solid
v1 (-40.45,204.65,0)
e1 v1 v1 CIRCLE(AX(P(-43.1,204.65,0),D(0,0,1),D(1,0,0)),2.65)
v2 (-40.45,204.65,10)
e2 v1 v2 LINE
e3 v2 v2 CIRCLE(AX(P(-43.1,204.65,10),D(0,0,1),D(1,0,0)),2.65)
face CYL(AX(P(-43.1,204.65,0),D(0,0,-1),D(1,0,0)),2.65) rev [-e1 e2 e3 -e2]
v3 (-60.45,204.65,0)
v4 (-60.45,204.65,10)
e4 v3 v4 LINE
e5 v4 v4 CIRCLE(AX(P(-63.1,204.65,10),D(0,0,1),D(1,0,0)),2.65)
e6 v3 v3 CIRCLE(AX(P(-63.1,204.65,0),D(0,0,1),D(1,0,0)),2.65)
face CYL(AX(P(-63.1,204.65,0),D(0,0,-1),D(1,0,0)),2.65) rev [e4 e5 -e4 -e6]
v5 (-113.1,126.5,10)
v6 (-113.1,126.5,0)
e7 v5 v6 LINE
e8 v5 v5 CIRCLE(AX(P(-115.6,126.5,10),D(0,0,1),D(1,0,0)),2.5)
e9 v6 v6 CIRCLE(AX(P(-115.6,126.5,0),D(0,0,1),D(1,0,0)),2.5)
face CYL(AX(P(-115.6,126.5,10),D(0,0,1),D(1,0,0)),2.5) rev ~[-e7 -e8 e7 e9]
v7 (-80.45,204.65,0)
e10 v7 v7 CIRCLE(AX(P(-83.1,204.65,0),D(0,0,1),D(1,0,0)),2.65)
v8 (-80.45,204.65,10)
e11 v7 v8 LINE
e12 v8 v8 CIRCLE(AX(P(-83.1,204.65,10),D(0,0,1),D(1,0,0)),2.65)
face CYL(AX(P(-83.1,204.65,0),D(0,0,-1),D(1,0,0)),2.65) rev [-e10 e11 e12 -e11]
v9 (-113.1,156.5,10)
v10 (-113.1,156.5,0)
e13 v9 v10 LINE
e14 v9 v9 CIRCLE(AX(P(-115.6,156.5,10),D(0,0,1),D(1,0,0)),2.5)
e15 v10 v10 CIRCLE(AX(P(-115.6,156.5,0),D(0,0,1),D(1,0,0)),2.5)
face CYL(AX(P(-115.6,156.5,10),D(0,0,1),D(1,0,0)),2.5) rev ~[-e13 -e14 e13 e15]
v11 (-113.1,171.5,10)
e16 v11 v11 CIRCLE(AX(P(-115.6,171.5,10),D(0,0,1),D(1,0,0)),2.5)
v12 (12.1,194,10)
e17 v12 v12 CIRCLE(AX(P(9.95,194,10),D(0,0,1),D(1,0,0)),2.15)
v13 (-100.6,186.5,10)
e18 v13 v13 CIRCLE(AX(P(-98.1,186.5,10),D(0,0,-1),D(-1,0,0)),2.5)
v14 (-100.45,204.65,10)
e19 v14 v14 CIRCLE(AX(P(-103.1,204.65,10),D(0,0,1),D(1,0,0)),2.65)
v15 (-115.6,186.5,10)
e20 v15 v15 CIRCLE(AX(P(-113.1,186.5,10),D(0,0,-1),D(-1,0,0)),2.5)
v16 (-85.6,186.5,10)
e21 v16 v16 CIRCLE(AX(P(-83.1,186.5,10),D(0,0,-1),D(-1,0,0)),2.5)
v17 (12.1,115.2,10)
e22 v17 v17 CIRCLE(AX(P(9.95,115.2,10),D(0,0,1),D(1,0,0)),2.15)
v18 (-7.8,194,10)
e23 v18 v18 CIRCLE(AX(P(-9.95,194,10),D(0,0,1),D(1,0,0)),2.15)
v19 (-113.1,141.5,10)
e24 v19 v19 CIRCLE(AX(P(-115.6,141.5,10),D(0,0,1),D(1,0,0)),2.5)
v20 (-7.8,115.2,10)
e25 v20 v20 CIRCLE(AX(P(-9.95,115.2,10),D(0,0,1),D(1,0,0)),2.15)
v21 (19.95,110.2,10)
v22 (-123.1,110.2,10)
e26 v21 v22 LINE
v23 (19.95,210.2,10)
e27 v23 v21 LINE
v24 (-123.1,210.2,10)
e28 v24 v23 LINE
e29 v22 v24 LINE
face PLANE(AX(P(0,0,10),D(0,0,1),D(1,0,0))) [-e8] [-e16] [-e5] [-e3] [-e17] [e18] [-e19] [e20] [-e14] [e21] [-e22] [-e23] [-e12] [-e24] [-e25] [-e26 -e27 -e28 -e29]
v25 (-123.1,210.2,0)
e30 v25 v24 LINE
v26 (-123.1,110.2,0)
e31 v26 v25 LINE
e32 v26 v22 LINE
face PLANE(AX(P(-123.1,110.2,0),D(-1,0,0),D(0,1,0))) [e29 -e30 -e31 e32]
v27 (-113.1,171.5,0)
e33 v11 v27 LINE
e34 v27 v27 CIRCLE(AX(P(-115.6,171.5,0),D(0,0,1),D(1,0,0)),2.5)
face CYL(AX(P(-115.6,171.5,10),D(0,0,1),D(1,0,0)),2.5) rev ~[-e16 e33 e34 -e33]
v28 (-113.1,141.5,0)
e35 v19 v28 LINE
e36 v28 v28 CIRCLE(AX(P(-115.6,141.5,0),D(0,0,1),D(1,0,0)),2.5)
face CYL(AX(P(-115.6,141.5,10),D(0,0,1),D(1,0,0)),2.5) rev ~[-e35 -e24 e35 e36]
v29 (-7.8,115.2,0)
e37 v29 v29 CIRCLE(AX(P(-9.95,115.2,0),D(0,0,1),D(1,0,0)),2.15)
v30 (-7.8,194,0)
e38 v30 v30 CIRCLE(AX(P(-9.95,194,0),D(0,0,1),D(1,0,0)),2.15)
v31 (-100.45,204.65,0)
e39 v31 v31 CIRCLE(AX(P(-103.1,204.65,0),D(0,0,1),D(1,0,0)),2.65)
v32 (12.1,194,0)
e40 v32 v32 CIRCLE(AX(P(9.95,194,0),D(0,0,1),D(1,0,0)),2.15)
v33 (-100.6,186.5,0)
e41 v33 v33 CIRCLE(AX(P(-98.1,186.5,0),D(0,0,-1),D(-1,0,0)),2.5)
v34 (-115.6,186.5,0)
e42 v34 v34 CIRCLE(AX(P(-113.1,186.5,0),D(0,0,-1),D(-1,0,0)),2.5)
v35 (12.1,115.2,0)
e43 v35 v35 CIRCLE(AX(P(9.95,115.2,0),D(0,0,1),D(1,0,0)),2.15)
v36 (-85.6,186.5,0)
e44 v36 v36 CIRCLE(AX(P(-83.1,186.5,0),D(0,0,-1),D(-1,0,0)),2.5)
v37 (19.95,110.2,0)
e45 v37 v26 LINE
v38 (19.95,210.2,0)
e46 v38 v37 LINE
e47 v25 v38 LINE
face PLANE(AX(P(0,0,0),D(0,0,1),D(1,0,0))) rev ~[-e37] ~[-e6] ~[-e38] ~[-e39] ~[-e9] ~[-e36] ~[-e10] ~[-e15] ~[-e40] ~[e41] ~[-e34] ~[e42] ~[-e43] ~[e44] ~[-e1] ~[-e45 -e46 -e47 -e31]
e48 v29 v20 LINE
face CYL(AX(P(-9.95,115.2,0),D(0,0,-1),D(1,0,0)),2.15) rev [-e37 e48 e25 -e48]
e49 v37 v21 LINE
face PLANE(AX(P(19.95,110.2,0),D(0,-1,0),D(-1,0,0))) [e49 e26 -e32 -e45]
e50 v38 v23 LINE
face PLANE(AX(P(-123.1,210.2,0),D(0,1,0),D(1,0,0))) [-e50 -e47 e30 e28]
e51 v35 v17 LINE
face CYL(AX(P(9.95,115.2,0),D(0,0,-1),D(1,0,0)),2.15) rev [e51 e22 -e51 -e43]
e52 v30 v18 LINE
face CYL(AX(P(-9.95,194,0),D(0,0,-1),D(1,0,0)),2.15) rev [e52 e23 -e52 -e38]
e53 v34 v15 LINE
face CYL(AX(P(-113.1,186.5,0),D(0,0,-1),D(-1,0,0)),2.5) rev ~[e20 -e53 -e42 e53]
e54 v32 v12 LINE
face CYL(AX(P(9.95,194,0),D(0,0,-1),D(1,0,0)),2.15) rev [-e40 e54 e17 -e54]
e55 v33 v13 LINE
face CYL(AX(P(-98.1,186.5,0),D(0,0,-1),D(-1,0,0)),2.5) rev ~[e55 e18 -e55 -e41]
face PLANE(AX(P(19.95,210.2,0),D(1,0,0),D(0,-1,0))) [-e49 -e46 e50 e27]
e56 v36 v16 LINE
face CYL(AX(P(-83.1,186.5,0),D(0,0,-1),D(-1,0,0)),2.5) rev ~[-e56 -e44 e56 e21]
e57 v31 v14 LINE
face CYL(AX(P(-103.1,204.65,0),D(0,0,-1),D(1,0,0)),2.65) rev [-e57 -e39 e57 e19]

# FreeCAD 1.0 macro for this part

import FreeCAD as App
import Part
import Sketcher

V = App.Vector
Q = App.Units.Quantity

doc = App.newDocument("Part")
body = doc.addObject("PartDesign::Body", "Body")

# Sketch on XY plane
sketch1 = body.newObject("Sketcher::SketchObject", "Sketch")
sketch1.AttachmentSupport = (doc.getObject("XY_Plane"), [""])
sketch1.MapMode = "FlatFace"
sketch1.addGeometry([
    Part.LineSegment(V(19.9, 210.2, 0), V(-123.1, 210.2, 0)),  # 0
    Part.LineSegment(V(-123.1, 210.2, 0), V(-123.1, 110.2, 0)),  # 1
    Part.LineSegment(V(-123.1, 110.2, 0), V(19.9, 110.2, 0)),  # 2
    Part.LineSegment(V(19.9, 110.2, 0), V(19.9, 210.2, 0)),  # 3
    Part.Circle(V(-9.9, 115.2, 0), V(0, 0, 1), 2.1),  # 4
    Part.Circle(V(9.9, 115.2, 0), V(0, 0, 1), 2.1),  # 5
    Part.Circle(V(-103.1, 204.7, 0), V(0, 0, 1), 2.6),  # 6
    Part.Circle(V(-83.1, 204.7, 0), V(0, 0, 1), 2.6),  # 7
    Part.Circle(V(-63.1, 204.7, 0), V(0, 0, 1), 2.6),  # 8
    Part.Circle(V(-43.1, 204.7, 0), V(0, 0, 1), 2.6),  # 9
    Part.Circle(V(-9.9, 194, 0), V(0, 0, 1), 2.1),  # 10
    Part.Circle(V(9.9, 194, 0), V(0, 0, 1), 2.1),  # 11
], False)
sketch1.addConstraint([
    Sketcher.Constraint("Coincident", 0, 2, 1, 1),
    Sketcher.Constraint("Coincident", 1, 2, 2, 1),
    Sketcher.Constraint("Coincident", 2, 2, 3, 1),
    Sketcher.Constraint("Coincident", 3, 2, 0, 1),
    Sketcher.Constraint("Horizontal", 0),
    Sketcher.Constraint("Vertical", 1),
    Sketcher.Constraint("Horizontal", 2),
    Sketcher.Constraint("Vertical", 3),
    Sketcher.Constraint("Equal", 4, 5),
    Sketcher.Constraint("Equal", 6, 7),
    Sketcher.Constraint("Equal", 7, 8),
    Sketcher.Constraint("Equal", 8, 9),
    Sketcher.Constraint("Equal", 5, 10),
    Sketcher.Constraint("Equal", 10, 11),
    Sketcher.Constraint("Symmetric", 4, 3, 5, 3, -2),
    Sketcher.Constraint("Symmetric", 10, 3, 11, 3, -2),
    Sketcher.Constraint("Horizontal", 6, 3, 7, 3),
    Sketcher.Constraint("Horizontal", 7, 3, 8, 3),
    Sketcher.Constraint("Horizontal", 8, 3, 9, 3),
    Sketcher.Constraint("Vertical", 4, 3, 10, 3),
    Sketcher.Constraint("Diameter", 4, Q("4.3 mm")),
    Sketcher.Constraint("Diameter", 6, Q("5.3 mm")),
    Sketcher.Constraint("DistanceY", 1, 2, 1, 1, Q("100 mm")),
    Sketcher.Constraint("DistanceY", -1, 1, 10, 3, Q("194 mm")),
    Sketcher.Constraint("DistanceX", 6, 3, 7, 3, Q("20 mm")),
    Sketcher.Constraint("DistanceX", 7, 3, 8, 3, Q("20 mm")),
    Sketcher.Constraint("DistanceX", 8, 3, 9, 3, Q("20 mm")),
    Sketcher.Constraint("DistanceX", 0, 2, 6, 3, Q("20 mm")),
    Sketcher.Constraint("DistanceY", 1, 2, 4, 3, Q("5 mm")),
    Sketcher.Constraint("DistanceX", 5, 3, 2, 2, Q("10 mm")),
    Sketcher.Constraint("DistanceX", 0, 2, 0, 1, Q("143.05 mm")),
    Sketcher.Constraint("DistanceY", -1, 1, 4, 3, Q("115.2 mm")),
    Sketcher.Constraint("DistanceX", 6, 3, -1, 1, Q("103.1 mm")),
    Sketcher.Constraint("DistanceY", -1, 1, 6, 3, Q("204.65 mm")),
])
pad1 = body.newObject("PartDesign::Pad", "Pad")
pad1.Profile = sketch1
pad1.Length = 10

# Sketch on XY plane
sketch2 = body.newObject("Sketcher::SketchObject", "Sketch001")
sketch2.AttachmentSupport = (doc.getObject("XY_Plane"), [""])
sketch2.MapMode = "FlatFace"
sketch2.addGeometry([
    Part.Circle(V(-83.1, 186.5, 0), V(0, 0, 1), 2.5),
    Part.Circle(V(-98.1, 186.5, 0), V(0, 0, 1), 2.5),
    Part.Circle(V(-113.1, 186.5, 0), V(0, 0, 1), 2.5),
], False)
sketch2.addConstraint([
    Sketcher.Constraint("Equal", 0, 1),
    Sketcher.Constraint("Equal", 1, 2),
    Sketcher.Constraint("Horizontal", 0, 3, 1, 3),
    Sketcher.Constraint("Horizontal", 1, 3, 2, 3),
    Sketcher.Constraint("Diameter", 0, Q("5 mm")),
    Sketcher.Constraint("DistanceX", 1, 3, 0, 3, Q("15 mm")),
    Sketcher.Constraint("DistanceX", 2, 3, 1, 3, Q("15 mm")),
    Sketcher.Constraint("DistanceX", 0, 3, -1, 1, Q("83.1 mm")),
    Sketcher.Constraint("DistanceY", -1, 1, 0, 3, Q("186.5 mm")),
])
pocket1 = body.newObject("PartDesign::Pocket", "Pocket")
pocket1.Profile = sketch2
pocket1.Type = "ThroughAll"
pocket1.Reversed = True

# Sketch on XY plane
sketch3 = body.newObject("Sketcher::SketchObject", "Sketch002")
sketch3.AttachmentSupport = (doc.getObject("XY_Plane"), [""])
sketch3.MapMode = "FlatFace"
sketch3.AttachmentOffset = App.Placement(V(0, 0, 10), App.Rotation())
sketch3.addGeometry([
    Part.Circle(V(-115.6, 171.5, 0), V(0, 0, 1), 2.5),
    Part.Circle(V(-115.6, 156.5, 0), V(0, 0, 1), 2.5),
    Part.Circle(V(-115.6, 141.5, 0), V(0, 0, 1), 2.5),
    Part.Circle(V(-115.6, 126.5, 0), V(0, 0, 1), 2.5),
], False)
sketch3.addConstraint([
    Sketcher.Constraint("Equal", 0, 1),
    Sketcher.Constraint("Equal", 1, 2),
    Sketcher.Constraint("Equal", 2, 3),
    Sketcher.Constraint("Vertical", 0, 3, 1, 3),
    Sketcher.Constraint("Vertical", 1, 3, 2, 3),
    Sketcher.Constraint("Vertical", 2, 3, 3, 3),
    Sketcher.Constraint("Diameter", 0, Q("5 mm")),
    Sketcher.Constraint("DistanceY", 1, 3, 0, 3, Q("15 mm")),
    Sketcher.Constraint("DistanceY", 2, 3, 1, 3, Q("15 mm")),
    Sketcher.Constraint("DistanceY", 3, 3, 2, 3, Q("15 mm")),
    Sketcher.Constraint("DistanceX", 0, 3, -1, 1, Q("115.6 mm")),
    Sketcher.Constraint("DistanceY", -1, 1, 0, 3, Q("171.5 mm")),
])
pocket2 = body.newObject("PartDesign::Pocket", "Pocket001")
pocket2.Profile = sketch3
pocket2.Type = "ThroughAll"

doc.recompute()
